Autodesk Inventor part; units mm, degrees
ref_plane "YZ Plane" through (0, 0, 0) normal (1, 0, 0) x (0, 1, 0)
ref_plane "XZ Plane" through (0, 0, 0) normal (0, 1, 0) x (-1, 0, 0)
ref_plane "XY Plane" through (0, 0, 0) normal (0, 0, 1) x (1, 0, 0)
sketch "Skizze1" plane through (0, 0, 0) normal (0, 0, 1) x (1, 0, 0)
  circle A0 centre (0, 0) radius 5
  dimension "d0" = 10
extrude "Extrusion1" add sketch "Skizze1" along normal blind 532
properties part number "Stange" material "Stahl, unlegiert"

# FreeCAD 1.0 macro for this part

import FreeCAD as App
import Part
import Sketcher

V = App.Vector

doc = App.newDocument("Part")
body = doc.addObject("PartDesign::Body", "Body")

# Sketch on XY plane
sketch1 = doc.addObject("Sketcher::SketchObject", "Sketch")
body.addObject(sketch1)
sketch1.AttachmentSupport = (doc.XY_Plane, [""])
sketch1.MapMode = "FlatFace"
sketch1.addGeometry(Part.Circle(V(0, 0, 0), V(0, 0, 1), 5), False)
sketch1.addConstraint(Sketcher.Constraint("Coincident", 0, 3, -1, 1))
sketch1.addConstraint(Sketcher.Constraint("Diameter", 0, 10.0))
pad1 = doc.addObject("PartDesign::Pad", "Pad")
body.addObject(pad1)
pad1.Profile = sketch1
pad1.Length = 532

doc.recompute()
